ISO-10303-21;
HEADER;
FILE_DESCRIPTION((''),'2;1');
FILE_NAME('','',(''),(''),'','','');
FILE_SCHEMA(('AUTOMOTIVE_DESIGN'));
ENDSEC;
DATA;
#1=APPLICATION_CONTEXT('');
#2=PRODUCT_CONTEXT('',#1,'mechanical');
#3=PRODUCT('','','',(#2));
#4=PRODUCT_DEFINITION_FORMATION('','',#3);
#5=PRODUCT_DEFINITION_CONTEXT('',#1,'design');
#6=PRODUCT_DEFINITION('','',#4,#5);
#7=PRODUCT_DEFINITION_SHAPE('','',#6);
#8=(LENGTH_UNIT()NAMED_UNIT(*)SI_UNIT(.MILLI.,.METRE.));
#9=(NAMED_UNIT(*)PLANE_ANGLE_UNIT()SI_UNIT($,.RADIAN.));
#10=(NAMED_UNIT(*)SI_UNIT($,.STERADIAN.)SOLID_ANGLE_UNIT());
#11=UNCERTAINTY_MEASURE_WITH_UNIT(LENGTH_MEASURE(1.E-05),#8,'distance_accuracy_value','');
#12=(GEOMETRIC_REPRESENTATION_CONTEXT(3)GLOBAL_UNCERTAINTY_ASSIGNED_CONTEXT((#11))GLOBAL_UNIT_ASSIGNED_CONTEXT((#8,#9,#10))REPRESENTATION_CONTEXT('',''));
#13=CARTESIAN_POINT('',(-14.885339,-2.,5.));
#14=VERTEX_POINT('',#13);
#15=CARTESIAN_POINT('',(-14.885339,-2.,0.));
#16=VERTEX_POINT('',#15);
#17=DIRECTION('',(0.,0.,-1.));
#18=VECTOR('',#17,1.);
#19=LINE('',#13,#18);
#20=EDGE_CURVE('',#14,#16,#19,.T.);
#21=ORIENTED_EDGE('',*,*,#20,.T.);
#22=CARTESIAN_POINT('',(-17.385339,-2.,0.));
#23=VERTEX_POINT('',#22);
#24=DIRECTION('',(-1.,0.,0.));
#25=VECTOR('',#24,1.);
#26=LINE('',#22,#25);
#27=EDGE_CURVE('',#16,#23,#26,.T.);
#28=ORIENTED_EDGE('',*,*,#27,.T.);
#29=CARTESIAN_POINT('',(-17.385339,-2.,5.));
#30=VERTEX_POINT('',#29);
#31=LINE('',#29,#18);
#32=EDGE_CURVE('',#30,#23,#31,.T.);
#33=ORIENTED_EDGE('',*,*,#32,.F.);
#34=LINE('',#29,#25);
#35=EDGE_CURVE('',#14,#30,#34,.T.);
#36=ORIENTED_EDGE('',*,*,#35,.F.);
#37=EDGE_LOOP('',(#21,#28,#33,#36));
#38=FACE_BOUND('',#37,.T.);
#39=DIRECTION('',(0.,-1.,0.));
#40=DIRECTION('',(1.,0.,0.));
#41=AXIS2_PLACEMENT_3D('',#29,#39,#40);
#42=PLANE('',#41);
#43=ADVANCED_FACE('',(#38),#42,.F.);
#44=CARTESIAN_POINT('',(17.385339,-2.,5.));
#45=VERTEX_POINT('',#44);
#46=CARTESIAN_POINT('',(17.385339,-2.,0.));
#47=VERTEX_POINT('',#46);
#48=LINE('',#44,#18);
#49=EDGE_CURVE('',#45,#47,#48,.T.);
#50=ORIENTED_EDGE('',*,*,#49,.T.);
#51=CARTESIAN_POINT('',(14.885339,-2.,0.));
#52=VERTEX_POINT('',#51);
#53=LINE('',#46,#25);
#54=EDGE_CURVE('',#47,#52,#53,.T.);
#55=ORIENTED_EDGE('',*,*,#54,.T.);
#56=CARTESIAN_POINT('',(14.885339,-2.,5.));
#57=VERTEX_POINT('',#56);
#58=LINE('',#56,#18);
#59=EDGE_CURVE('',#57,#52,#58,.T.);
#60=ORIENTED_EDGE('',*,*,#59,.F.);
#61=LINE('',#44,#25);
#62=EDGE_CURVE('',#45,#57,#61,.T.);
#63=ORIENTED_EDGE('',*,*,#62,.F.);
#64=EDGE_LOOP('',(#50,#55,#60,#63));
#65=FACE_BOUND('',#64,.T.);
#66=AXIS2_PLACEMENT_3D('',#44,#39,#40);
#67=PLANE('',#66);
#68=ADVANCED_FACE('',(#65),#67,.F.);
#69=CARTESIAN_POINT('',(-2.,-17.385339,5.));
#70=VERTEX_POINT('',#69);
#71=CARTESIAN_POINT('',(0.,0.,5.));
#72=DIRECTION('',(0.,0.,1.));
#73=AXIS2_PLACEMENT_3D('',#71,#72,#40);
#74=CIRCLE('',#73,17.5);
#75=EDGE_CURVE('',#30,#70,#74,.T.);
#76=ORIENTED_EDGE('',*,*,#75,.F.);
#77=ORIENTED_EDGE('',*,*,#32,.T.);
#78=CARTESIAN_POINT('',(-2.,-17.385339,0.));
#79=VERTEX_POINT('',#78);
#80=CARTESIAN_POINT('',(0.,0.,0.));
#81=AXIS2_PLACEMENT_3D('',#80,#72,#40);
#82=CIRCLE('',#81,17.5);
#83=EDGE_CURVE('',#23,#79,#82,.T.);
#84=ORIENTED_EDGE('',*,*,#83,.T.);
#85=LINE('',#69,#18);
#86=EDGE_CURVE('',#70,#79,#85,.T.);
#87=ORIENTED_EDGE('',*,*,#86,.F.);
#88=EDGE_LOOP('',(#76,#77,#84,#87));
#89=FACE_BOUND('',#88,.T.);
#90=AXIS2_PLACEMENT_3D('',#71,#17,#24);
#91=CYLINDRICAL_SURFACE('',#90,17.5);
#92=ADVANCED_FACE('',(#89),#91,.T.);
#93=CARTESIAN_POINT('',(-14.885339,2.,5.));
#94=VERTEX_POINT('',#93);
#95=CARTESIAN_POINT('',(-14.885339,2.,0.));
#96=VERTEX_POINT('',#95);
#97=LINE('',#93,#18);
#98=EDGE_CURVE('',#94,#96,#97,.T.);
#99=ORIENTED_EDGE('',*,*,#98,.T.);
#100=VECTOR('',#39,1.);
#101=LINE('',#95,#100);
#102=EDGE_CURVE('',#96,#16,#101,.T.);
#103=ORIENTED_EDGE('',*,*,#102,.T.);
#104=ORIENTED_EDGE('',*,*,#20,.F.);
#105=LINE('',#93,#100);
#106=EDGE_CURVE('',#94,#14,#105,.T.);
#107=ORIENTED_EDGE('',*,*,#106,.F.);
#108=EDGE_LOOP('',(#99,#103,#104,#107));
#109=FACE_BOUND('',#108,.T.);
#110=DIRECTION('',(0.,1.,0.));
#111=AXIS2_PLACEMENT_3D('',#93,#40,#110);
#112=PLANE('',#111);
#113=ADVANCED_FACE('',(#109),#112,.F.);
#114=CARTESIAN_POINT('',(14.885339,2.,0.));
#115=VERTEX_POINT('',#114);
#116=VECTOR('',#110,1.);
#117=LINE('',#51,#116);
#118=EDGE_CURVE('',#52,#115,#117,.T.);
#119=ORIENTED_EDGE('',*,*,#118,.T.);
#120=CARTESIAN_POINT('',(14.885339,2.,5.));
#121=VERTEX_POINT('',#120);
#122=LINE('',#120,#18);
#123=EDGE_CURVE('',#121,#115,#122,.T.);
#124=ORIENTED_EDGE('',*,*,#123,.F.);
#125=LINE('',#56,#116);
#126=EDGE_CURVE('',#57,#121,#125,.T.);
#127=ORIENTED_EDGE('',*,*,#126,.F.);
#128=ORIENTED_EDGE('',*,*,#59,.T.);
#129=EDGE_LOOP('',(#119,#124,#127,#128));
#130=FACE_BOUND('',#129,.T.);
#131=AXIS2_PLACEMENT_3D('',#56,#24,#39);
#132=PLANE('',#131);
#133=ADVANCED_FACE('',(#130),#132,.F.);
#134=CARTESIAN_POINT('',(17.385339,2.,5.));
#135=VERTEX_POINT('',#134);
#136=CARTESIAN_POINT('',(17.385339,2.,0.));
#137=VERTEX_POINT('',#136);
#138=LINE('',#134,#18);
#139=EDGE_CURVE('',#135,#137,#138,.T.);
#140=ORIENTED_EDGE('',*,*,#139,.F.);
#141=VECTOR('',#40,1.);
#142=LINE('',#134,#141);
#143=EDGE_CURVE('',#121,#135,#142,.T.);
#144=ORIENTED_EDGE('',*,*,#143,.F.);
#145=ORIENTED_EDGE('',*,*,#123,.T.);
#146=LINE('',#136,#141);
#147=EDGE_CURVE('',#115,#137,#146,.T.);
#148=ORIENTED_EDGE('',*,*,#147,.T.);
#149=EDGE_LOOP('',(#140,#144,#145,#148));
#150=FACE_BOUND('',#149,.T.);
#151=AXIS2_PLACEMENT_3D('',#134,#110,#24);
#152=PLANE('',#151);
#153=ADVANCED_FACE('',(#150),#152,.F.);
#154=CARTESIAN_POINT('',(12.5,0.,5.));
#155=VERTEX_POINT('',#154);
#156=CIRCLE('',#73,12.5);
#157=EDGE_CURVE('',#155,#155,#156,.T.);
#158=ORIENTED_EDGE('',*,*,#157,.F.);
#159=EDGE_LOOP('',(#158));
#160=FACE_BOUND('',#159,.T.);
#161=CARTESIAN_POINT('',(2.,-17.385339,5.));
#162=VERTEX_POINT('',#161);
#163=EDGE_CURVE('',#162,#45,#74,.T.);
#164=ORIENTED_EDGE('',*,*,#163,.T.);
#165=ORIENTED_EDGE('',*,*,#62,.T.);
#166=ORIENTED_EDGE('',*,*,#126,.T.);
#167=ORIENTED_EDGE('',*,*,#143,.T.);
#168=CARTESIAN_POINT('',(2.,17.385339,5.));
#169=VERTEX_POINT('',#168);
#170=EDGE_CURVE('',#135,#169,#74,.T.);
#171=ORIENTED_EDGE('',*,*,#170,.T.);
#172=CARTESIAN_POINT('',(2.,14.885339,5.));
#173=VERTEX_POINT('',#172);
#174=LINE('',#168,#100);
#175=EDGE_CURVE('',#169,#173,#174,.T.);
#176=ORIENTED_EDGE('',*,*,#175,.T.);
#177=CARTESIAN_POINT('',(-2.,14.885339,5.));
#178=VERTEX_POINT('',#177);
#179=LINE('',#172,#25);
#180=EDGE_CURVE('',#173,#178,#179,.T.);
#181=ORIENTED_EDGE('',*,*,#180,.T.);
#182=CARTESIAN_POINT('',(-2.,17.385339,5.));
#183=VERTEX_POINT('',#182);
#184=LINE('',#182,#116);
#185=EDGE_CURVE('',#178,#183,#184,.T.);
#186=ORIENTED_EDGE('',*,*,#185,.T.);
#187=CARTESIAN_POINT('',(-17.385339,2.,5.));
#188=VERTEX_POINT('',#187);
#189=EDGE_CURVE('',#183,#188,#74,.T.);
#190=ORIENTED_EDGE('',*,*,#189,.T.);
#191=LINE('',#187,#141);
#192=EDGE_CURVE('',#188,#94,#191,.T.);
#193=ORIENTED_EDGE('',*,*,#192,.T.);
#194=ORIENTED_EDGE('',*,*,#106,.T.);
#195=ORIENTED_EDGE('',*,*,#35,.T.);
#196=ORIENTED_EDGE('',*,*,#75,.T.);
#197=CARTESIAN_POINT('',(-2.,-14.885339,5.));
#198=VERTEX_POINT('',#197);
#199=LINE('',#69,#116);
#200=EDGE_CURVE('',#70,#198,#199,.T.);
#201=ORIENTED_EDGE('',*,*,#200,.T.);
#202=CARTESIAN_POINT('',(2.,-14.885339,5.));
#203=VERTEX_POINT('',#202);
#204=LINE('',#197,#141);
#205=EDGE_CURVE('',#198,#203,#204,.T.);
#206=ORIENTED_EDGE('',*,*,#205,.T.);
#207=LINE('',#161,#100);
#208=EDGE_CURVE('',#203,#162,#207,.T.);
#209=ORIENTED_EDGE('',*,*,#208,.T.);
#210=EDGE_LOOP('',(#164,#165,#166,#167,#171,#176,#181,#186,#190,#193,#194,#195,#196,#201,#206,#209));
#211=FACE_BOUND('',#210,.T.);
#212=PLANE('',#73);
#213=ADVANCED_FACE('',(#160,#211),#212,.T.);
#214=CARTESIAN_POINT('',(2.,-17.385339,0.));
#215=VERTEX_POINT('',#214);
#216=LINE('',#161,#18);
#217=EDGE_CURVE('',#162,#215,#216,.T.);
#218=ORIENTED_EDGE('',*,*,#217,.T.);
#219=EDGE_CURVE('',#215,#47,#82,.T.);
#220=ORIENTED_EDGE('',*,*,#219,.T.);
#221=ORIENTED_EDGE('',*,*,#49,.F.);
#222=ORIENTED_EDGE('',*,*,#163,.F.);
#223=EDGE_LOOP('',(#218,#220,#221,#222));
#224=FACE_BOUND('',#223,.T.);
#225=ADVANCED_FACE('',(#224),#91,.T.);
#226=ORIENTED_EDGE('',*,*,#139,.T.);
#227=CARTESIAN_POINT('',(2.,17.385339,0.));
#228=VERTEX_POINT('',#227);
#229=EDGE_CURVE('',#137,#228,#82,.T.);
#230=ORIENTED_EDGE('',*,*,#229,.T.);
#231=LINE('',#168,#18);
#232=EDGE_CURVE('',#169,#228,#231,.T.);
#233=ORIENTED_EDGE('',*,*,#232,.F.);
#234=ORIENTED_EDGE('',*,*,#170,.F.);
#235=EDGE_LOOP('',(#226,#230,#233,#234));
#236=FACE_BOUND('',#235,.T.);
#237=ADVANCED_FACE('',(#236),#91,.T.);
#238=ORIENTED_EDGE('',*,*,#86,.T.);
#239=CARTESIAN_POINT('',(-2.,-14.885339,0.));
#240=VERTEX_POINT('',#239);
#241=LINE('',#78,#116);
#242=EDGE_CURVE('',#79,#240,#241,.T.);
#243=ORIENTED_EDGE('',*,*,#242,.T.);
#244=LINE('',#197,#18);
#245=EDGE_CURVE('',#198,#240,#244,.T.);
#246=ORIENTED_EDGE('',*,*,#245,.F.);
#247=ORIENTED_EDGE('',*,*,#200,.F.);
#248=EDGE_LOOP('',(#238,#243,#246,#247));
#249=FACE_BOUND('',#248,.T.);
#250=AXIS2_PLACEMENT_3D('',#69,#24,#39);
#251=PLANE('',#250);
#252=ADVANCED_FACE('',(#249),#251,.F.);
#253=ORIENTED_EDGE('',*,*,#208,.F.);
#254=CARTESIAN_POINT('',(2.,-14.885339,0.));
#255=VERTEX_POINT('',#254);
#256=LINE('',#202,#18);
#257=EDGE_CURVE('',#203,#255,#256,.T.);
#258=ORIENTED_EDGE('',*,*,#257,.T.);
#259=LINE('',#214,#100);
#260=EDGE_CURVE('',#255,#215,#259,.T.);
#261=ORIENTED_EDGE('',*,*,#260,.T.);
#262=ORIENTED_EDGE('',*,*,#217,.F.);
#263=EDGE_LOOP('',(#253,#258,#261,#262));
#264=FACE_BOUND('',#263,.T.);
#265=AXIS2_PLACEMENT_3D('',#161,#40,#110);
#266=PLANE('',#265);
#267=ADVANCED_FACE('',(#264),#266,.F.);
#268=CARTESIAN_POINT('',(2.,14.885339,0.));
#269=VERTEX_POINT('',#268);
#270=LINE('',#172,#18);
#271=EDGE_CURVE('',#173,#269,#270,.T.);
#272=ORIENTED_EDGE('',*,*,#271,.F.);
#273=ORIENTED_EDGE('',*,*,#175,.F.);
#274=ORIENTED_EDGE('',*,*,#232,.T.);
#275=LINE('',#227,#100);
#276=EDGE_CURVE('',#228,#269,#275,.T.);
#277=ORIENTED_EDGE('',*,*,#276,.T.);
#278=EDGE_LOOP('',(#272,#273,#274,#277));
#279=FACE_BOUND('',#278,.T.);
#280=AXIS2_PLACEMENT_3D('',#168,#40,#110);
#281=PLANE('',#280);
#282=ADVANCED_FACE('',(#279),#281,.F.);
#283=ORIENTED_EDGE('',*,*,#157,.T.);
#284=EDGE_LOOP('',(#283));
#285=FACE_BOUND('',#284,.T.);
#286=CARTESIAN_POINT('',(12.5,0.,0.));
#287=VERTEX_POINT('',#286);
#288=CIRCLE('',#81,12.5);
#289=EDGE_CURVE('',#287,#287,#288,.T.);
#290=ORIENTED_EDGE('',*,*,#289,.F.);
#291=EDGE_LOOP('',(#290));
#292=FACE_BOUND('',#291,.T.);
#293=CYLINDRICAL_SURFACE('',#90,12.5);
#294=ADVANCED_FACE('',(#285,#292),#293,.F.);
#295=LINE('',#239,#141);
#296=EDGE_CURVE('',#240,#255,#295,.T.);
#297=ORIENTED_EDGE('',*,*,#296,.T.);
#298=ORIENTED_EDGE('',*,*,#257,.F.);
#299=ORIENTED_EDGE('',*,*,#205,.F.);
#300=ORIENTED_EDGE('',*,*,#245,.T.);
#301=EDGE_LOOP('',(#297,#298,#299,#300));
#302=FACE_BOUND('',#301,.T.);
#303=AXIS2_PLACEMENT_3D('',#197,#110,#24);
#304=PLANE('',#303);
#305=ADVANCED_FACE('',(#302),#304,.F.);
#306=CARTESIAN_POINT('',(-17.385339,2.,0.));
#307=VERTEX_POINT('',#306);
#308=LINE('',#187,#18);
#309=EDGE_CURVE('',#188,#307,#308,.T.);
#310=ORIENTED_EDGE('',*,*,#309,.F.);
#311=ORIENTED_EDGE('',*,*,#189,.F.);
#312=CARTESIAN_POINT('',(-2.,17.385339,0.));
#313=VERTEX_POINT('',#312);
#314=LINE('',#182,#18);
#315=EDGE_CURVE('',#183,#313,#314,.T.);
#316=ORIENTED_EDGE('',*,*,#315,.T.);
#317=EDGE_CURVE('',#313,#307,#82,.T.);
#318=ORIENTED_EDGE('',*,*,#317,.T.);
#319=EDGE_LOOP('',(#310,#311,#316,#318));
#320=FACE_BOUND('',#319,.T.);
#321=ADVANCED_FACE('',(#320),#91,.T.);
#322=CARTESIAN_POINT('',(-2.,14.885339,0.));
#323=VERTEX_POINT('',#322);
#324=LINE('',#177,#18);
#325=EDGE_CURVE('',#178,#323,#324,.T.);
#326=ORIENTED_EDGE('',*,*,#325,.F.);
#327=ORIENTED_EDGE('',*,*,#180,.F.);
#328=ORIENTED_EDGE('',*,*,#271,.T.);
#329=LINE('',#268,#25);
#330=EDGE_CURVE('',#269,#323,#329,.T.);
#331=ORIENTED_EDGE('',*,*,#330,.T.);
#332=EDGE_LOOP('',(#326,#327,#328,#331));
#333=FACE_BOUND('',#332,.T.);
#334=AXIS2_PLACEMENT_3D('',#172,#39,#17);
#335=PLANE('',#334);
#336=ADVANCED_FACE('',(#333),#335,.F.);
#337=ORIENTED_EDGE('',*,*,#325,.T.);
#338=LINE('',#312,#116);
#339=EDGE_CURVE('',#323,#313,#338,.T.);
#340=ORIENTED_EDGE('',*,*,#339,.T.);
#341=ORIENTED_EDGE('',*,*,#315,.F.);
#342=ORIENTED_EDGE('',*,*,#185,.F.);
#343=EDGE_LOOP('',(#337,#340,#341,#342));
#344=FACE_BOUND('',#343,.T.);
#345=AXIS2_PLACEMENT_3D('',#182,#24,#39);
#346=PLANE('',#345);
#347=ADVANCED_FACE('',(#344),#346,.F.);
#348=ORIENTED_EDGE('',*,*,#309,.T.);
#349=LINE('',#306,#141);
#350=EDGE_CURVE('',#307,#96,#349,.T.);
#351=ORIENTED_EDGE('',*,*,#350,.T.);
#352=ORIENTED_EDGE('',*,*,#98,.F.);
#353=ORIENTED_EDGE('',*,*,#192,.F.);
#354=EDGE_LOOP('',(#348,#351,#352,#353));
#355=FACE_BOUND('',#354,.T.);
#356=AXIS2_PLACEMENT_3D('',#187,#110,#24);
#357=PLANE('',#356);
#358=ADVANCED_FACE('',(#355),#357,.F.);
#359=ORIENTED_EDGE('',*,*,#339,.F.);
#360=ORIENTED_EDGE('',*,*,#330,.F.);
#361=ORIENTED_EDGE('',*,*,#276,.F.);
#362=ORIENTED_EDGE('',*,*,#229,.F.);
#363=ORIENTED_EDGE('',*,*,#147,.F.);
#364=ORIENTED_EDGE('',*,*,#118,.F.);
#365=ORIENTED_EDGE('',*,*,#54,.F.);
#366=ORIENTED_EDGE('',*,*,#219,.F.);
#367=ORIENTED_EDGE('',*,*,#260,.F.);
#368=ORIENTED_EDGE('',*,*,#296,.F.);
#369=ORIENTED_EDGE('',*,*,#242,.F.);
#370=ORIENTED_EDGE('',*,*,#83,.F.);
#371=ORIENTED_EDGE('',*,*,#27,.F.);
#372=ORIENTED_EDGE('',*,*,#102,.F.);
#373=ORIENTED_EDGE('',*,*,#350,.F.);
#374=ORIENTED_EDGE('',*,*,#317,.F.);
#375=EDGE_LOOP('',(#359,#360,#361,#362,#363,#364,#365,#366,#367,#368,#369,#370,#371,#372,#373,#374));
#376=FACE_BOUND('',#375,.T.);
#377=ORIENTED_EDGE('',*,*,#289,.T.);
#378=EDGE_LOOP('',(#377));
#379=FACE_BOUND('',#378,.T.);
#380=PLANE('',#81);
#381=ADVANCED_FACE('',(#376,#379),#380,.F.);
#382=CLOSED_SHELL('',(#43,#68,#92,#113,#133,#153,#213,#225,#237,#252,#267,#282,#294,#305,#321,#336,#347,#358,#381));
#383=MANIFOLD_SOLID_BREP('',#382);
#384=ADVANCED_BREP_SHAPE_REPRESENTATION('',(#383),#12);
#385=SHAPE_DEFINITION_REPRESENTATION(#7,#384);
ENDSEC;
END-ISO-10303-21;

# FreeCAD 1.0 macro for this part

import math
import FreeCAD as App
import Part
import Sketcher
Q = App.Units.Quantity

doc = App.newDocument("Part")
body = doc.addObject("PartDesign::Body", "Body")

sketch1 = body.newObject("Sketcher::SketchObject", "Sketch")
sketch1.AttachmentSupport = (doc.getObject("XY_Plane"), [""])
sketch1.MapMode = "FlatFace"
sketch1.addGeometry(Part.LineSegment(App.Vector(14.9, 2, 0), App.Vector(17.4, 2, 0)), False)
sketch1.addGeometry(Part.ArcOfCircle(Part.Circle(App.Vector(0, 0, 0), App.Vector(0, 0, 1), 17.5), math.radians(7), math.radians(83)), False)
sketch1.addGeometry(Part.LineSegment(App.Vector(2, 17.4, 0), App.Vector(2, 14.9, 0)), False)
sketch1.addGeometry(Part.LineSegment(App.Vector(2, 14.9, 0), App.Vector(-2, 14.9, 0)), False)
sketch1.addGeometry(Part.LineSegment(App.Vector(-2, 14.9, 0), App.Vector(-2, 17.4, 0)), False)
sketch1.addGeometry(Part.ArcOfCircle(Part.Circle(App.Vector(0, 0, 0), App.Vector(0, 0, 1), 17.5), math.radians(97), math.radians(173)), False)
sketch1.addGeometry(Part.LineSegment(App.Vector(-17.4, 2, 0), App.Vector(-14.9, 2, 0)), False)
sketch1.addGeometry(Part.LineSegment(App.Vector(-14.9, 2, 0), App.Vector(-14.9, -2, 0)), False)
sketch1.addGeometry(Part.LineSegment(App.Vector(-14.9, -2, 0), App.Vector(-17.4, -2, 0)), False)
sketch1.addGeometry(Part.ArcOfCircle(Part.Circle(App.Vector(0, 0, 0), App.Vector(0, 0, 1), 17.5), math.radians(-173), math.radians(-97)), False)
sketch1.addGeometry(Part.LineSegment(App.Vector(-2, -17.4, 0), App.Vector(-2, -14.9, 0)), False)
sketch1.addGeometry(Part.LineSegment(App.Vector(-2, -14.9, 0), App.Vector(2, -14.9, 0)), False)
sketch1.addGeometry(Part.LineSegment(App.Vector(2, -14.9, 0), App.Vector(2, -17.4, 0)), False)
sketch1.addGeometry(Part.ArcOfCircle(Part.Circle(App.Vector(0, 0, 0), App.Vector(0, 0, 1), 17.5), math.radians(-83), math.radians(-7)), False)
sketch1.addGeometry(Part.LineSegment(App.Vector(17.4, -2, 0), App.Vector(14.9, -2, 0)), False)
sketch1.addGeometry(Part.LineSegment(App.Vector(14.9, -2, 0), App.Vector(14.9, 2, 0)), False)
sketch1.addGeometry(Part.Circle(App.Vector(0, 0, 0), App.Vector(0, 0, 1), 12.5), False)
sketch1.addConstraint(Sketcher.Constraint("Coincident", 0, 2, 1, 1))
sketch1.addConstraint(Sketcher.Constraint("Coincident", 1, 2, 2, 1))
sketch1.addConstraint(Sketcher.Constraint("Coincident", 2, 2, 3, 1))
sketch1.addConstraint(Sketcher.Constraint("Coincident", 3, 2, 4, 1))
sketch1.addConstraint(Sketcher.Constraint("Coincident", 4, 2, 5, 1))
sketch1.addConstraint(Sketcher.Constraint("Coincident", 5, 2, 6, 1))
sketch1.addConstraint(Sketcher.Constraint("Coincident", 6, 2, 7, 1))
sketch1.addConstraint(Sketcher.Constraint("Coincident", 7, 2, 8, 1))
sketch1.addConstraint(Sketcher.Constraint("Coincident", 8, 2, 9, 1))
sketch1.addConstraint(Sketcher.Constraint("Coincident", 9, 2, 10, 1))
sketch1.addConstraint(Sketcher.Constraint("Coincident", 10, 2, 11, 1))
sketch1.addConstraint(Sketcher.Constraint("Coincident", 11, 2, 12, 1))
sketch1.addConstraint(Sketcher.Constraint("Coincident", 12, 2, 13, 1))
sketch1.addConstraint(Sketcher.Constraint("Coincident", 13, 2, 14, 1))
sketch1.addConstraint(Sketcher.Constraint("Coincident", 14, 2, 15, 1))
sketch1.addConstraint(Sketcher.Constraint("Coincident", 15, 2, 0, 1))
sketch1.addConstraint(Sketcher.Constraint("Horizontal", 0))
sketch1.addConstraint(Sketcher.Constraint("Vertical", 2))
sketch1.addConstraint(Sketcher.Constraint("Horizontal", 3))
sketch1.addConstraint(Sketcher.Constraint("Vertical", 4))
sketch1.addConstraint(Sketcher.Constraint("Horizontal", 6))
sketch1.addConstraint(Sketcher.Constraint("Vertical", 7))
sketch1.addConstraint(Sketcher.Constraint("Horizontal", 8))
sketch1.addConstraint(Sketcher.Constraint("Vertical", 10))
sketch1.addConstraint(Sketcher.Constraint("Horizontal", 11))
sketch1.addConstraint(Sketcher.Constraint("Vertical", 12))
sketch1.addConstraint(Sketcher.Constraint("Horizontal", 14))
sketch1.addConstraint(Sketcher.Constraint("Vertical", 15))
sketch1.addConstraint(Sketcher.Constraint("Coincident", 1, 3, -1, 1))
sketch1.addConstraint(Sketcher.Constraint("Coincident", 5, 3, -1, 1))
sketch1.addConstraint(Sketcher.Constraint("Coincident", 9, 3, -1, 1))
sketch1.addConstraint(Sketcher.Constraint("Coincident", 13, 3, -1, 1))
sketch1.addConstraint(Sketcher.Constraint("Coincident", 16, 3, -1, 1))
sketch1.addConstraint(Sketcher.Constraint("Equal", 1, 5))
sketch1.addConstraint(Sketcher.Constraint("Equal", 5, 9))
sketch1.addConstraint(Sketcher.Constraint("Equal", 9, 13))
sketch1.addConstraint(Sketcher.Constraint("Symmetric", 2, 2, 10, 2, -1, 1))
sketch1.addConstraint(Sketcher.Constraint("Symmetric", 6, 2, 14, 2, -1, 1))
sketch1.addConstraint(Sketcher.Constraint("Horizontal", 1, 2, 4, 2))
sketch1.addConstraint(Sketcher.Constraint("Horizontal", 0, 2, 5, 2))
sketch1.addConstraint(Sketcher.Constraint("Horizontal", 9, 2, 12, 2))
sketch1.addConstraint(Sketcher.Constraint("Horizontal", 8, 2, 13, 2))
sketch1.addConstraint(Sketcher.Constraint("Equal", 14, 2))
sketch1.addConstraint(Sketcher.Constraint("Equal", 11, 7))
sketch1.addConstraint(Sketcher.Constraint("Diameter", 16, Q("25 mm")))
sketch1.addConstraint(Sketcher.Constraint("Radius", 1, Q("17.5 mm")))
sketch1.addConstraint(Sketcher.Constraint("DistanceX", 3, 2, 3, 1, Q("4 mm")))
sketch1.addConstraint(Sketcher.Constraint("DistanceX", 0, 1, 0, 2, Q("2.5 mm")))
pad1 = body.newObject("PartDesign::Pad", "Pad")
pad1.Profile = sketch1
pad1.Length = 5

doc.recompute()
